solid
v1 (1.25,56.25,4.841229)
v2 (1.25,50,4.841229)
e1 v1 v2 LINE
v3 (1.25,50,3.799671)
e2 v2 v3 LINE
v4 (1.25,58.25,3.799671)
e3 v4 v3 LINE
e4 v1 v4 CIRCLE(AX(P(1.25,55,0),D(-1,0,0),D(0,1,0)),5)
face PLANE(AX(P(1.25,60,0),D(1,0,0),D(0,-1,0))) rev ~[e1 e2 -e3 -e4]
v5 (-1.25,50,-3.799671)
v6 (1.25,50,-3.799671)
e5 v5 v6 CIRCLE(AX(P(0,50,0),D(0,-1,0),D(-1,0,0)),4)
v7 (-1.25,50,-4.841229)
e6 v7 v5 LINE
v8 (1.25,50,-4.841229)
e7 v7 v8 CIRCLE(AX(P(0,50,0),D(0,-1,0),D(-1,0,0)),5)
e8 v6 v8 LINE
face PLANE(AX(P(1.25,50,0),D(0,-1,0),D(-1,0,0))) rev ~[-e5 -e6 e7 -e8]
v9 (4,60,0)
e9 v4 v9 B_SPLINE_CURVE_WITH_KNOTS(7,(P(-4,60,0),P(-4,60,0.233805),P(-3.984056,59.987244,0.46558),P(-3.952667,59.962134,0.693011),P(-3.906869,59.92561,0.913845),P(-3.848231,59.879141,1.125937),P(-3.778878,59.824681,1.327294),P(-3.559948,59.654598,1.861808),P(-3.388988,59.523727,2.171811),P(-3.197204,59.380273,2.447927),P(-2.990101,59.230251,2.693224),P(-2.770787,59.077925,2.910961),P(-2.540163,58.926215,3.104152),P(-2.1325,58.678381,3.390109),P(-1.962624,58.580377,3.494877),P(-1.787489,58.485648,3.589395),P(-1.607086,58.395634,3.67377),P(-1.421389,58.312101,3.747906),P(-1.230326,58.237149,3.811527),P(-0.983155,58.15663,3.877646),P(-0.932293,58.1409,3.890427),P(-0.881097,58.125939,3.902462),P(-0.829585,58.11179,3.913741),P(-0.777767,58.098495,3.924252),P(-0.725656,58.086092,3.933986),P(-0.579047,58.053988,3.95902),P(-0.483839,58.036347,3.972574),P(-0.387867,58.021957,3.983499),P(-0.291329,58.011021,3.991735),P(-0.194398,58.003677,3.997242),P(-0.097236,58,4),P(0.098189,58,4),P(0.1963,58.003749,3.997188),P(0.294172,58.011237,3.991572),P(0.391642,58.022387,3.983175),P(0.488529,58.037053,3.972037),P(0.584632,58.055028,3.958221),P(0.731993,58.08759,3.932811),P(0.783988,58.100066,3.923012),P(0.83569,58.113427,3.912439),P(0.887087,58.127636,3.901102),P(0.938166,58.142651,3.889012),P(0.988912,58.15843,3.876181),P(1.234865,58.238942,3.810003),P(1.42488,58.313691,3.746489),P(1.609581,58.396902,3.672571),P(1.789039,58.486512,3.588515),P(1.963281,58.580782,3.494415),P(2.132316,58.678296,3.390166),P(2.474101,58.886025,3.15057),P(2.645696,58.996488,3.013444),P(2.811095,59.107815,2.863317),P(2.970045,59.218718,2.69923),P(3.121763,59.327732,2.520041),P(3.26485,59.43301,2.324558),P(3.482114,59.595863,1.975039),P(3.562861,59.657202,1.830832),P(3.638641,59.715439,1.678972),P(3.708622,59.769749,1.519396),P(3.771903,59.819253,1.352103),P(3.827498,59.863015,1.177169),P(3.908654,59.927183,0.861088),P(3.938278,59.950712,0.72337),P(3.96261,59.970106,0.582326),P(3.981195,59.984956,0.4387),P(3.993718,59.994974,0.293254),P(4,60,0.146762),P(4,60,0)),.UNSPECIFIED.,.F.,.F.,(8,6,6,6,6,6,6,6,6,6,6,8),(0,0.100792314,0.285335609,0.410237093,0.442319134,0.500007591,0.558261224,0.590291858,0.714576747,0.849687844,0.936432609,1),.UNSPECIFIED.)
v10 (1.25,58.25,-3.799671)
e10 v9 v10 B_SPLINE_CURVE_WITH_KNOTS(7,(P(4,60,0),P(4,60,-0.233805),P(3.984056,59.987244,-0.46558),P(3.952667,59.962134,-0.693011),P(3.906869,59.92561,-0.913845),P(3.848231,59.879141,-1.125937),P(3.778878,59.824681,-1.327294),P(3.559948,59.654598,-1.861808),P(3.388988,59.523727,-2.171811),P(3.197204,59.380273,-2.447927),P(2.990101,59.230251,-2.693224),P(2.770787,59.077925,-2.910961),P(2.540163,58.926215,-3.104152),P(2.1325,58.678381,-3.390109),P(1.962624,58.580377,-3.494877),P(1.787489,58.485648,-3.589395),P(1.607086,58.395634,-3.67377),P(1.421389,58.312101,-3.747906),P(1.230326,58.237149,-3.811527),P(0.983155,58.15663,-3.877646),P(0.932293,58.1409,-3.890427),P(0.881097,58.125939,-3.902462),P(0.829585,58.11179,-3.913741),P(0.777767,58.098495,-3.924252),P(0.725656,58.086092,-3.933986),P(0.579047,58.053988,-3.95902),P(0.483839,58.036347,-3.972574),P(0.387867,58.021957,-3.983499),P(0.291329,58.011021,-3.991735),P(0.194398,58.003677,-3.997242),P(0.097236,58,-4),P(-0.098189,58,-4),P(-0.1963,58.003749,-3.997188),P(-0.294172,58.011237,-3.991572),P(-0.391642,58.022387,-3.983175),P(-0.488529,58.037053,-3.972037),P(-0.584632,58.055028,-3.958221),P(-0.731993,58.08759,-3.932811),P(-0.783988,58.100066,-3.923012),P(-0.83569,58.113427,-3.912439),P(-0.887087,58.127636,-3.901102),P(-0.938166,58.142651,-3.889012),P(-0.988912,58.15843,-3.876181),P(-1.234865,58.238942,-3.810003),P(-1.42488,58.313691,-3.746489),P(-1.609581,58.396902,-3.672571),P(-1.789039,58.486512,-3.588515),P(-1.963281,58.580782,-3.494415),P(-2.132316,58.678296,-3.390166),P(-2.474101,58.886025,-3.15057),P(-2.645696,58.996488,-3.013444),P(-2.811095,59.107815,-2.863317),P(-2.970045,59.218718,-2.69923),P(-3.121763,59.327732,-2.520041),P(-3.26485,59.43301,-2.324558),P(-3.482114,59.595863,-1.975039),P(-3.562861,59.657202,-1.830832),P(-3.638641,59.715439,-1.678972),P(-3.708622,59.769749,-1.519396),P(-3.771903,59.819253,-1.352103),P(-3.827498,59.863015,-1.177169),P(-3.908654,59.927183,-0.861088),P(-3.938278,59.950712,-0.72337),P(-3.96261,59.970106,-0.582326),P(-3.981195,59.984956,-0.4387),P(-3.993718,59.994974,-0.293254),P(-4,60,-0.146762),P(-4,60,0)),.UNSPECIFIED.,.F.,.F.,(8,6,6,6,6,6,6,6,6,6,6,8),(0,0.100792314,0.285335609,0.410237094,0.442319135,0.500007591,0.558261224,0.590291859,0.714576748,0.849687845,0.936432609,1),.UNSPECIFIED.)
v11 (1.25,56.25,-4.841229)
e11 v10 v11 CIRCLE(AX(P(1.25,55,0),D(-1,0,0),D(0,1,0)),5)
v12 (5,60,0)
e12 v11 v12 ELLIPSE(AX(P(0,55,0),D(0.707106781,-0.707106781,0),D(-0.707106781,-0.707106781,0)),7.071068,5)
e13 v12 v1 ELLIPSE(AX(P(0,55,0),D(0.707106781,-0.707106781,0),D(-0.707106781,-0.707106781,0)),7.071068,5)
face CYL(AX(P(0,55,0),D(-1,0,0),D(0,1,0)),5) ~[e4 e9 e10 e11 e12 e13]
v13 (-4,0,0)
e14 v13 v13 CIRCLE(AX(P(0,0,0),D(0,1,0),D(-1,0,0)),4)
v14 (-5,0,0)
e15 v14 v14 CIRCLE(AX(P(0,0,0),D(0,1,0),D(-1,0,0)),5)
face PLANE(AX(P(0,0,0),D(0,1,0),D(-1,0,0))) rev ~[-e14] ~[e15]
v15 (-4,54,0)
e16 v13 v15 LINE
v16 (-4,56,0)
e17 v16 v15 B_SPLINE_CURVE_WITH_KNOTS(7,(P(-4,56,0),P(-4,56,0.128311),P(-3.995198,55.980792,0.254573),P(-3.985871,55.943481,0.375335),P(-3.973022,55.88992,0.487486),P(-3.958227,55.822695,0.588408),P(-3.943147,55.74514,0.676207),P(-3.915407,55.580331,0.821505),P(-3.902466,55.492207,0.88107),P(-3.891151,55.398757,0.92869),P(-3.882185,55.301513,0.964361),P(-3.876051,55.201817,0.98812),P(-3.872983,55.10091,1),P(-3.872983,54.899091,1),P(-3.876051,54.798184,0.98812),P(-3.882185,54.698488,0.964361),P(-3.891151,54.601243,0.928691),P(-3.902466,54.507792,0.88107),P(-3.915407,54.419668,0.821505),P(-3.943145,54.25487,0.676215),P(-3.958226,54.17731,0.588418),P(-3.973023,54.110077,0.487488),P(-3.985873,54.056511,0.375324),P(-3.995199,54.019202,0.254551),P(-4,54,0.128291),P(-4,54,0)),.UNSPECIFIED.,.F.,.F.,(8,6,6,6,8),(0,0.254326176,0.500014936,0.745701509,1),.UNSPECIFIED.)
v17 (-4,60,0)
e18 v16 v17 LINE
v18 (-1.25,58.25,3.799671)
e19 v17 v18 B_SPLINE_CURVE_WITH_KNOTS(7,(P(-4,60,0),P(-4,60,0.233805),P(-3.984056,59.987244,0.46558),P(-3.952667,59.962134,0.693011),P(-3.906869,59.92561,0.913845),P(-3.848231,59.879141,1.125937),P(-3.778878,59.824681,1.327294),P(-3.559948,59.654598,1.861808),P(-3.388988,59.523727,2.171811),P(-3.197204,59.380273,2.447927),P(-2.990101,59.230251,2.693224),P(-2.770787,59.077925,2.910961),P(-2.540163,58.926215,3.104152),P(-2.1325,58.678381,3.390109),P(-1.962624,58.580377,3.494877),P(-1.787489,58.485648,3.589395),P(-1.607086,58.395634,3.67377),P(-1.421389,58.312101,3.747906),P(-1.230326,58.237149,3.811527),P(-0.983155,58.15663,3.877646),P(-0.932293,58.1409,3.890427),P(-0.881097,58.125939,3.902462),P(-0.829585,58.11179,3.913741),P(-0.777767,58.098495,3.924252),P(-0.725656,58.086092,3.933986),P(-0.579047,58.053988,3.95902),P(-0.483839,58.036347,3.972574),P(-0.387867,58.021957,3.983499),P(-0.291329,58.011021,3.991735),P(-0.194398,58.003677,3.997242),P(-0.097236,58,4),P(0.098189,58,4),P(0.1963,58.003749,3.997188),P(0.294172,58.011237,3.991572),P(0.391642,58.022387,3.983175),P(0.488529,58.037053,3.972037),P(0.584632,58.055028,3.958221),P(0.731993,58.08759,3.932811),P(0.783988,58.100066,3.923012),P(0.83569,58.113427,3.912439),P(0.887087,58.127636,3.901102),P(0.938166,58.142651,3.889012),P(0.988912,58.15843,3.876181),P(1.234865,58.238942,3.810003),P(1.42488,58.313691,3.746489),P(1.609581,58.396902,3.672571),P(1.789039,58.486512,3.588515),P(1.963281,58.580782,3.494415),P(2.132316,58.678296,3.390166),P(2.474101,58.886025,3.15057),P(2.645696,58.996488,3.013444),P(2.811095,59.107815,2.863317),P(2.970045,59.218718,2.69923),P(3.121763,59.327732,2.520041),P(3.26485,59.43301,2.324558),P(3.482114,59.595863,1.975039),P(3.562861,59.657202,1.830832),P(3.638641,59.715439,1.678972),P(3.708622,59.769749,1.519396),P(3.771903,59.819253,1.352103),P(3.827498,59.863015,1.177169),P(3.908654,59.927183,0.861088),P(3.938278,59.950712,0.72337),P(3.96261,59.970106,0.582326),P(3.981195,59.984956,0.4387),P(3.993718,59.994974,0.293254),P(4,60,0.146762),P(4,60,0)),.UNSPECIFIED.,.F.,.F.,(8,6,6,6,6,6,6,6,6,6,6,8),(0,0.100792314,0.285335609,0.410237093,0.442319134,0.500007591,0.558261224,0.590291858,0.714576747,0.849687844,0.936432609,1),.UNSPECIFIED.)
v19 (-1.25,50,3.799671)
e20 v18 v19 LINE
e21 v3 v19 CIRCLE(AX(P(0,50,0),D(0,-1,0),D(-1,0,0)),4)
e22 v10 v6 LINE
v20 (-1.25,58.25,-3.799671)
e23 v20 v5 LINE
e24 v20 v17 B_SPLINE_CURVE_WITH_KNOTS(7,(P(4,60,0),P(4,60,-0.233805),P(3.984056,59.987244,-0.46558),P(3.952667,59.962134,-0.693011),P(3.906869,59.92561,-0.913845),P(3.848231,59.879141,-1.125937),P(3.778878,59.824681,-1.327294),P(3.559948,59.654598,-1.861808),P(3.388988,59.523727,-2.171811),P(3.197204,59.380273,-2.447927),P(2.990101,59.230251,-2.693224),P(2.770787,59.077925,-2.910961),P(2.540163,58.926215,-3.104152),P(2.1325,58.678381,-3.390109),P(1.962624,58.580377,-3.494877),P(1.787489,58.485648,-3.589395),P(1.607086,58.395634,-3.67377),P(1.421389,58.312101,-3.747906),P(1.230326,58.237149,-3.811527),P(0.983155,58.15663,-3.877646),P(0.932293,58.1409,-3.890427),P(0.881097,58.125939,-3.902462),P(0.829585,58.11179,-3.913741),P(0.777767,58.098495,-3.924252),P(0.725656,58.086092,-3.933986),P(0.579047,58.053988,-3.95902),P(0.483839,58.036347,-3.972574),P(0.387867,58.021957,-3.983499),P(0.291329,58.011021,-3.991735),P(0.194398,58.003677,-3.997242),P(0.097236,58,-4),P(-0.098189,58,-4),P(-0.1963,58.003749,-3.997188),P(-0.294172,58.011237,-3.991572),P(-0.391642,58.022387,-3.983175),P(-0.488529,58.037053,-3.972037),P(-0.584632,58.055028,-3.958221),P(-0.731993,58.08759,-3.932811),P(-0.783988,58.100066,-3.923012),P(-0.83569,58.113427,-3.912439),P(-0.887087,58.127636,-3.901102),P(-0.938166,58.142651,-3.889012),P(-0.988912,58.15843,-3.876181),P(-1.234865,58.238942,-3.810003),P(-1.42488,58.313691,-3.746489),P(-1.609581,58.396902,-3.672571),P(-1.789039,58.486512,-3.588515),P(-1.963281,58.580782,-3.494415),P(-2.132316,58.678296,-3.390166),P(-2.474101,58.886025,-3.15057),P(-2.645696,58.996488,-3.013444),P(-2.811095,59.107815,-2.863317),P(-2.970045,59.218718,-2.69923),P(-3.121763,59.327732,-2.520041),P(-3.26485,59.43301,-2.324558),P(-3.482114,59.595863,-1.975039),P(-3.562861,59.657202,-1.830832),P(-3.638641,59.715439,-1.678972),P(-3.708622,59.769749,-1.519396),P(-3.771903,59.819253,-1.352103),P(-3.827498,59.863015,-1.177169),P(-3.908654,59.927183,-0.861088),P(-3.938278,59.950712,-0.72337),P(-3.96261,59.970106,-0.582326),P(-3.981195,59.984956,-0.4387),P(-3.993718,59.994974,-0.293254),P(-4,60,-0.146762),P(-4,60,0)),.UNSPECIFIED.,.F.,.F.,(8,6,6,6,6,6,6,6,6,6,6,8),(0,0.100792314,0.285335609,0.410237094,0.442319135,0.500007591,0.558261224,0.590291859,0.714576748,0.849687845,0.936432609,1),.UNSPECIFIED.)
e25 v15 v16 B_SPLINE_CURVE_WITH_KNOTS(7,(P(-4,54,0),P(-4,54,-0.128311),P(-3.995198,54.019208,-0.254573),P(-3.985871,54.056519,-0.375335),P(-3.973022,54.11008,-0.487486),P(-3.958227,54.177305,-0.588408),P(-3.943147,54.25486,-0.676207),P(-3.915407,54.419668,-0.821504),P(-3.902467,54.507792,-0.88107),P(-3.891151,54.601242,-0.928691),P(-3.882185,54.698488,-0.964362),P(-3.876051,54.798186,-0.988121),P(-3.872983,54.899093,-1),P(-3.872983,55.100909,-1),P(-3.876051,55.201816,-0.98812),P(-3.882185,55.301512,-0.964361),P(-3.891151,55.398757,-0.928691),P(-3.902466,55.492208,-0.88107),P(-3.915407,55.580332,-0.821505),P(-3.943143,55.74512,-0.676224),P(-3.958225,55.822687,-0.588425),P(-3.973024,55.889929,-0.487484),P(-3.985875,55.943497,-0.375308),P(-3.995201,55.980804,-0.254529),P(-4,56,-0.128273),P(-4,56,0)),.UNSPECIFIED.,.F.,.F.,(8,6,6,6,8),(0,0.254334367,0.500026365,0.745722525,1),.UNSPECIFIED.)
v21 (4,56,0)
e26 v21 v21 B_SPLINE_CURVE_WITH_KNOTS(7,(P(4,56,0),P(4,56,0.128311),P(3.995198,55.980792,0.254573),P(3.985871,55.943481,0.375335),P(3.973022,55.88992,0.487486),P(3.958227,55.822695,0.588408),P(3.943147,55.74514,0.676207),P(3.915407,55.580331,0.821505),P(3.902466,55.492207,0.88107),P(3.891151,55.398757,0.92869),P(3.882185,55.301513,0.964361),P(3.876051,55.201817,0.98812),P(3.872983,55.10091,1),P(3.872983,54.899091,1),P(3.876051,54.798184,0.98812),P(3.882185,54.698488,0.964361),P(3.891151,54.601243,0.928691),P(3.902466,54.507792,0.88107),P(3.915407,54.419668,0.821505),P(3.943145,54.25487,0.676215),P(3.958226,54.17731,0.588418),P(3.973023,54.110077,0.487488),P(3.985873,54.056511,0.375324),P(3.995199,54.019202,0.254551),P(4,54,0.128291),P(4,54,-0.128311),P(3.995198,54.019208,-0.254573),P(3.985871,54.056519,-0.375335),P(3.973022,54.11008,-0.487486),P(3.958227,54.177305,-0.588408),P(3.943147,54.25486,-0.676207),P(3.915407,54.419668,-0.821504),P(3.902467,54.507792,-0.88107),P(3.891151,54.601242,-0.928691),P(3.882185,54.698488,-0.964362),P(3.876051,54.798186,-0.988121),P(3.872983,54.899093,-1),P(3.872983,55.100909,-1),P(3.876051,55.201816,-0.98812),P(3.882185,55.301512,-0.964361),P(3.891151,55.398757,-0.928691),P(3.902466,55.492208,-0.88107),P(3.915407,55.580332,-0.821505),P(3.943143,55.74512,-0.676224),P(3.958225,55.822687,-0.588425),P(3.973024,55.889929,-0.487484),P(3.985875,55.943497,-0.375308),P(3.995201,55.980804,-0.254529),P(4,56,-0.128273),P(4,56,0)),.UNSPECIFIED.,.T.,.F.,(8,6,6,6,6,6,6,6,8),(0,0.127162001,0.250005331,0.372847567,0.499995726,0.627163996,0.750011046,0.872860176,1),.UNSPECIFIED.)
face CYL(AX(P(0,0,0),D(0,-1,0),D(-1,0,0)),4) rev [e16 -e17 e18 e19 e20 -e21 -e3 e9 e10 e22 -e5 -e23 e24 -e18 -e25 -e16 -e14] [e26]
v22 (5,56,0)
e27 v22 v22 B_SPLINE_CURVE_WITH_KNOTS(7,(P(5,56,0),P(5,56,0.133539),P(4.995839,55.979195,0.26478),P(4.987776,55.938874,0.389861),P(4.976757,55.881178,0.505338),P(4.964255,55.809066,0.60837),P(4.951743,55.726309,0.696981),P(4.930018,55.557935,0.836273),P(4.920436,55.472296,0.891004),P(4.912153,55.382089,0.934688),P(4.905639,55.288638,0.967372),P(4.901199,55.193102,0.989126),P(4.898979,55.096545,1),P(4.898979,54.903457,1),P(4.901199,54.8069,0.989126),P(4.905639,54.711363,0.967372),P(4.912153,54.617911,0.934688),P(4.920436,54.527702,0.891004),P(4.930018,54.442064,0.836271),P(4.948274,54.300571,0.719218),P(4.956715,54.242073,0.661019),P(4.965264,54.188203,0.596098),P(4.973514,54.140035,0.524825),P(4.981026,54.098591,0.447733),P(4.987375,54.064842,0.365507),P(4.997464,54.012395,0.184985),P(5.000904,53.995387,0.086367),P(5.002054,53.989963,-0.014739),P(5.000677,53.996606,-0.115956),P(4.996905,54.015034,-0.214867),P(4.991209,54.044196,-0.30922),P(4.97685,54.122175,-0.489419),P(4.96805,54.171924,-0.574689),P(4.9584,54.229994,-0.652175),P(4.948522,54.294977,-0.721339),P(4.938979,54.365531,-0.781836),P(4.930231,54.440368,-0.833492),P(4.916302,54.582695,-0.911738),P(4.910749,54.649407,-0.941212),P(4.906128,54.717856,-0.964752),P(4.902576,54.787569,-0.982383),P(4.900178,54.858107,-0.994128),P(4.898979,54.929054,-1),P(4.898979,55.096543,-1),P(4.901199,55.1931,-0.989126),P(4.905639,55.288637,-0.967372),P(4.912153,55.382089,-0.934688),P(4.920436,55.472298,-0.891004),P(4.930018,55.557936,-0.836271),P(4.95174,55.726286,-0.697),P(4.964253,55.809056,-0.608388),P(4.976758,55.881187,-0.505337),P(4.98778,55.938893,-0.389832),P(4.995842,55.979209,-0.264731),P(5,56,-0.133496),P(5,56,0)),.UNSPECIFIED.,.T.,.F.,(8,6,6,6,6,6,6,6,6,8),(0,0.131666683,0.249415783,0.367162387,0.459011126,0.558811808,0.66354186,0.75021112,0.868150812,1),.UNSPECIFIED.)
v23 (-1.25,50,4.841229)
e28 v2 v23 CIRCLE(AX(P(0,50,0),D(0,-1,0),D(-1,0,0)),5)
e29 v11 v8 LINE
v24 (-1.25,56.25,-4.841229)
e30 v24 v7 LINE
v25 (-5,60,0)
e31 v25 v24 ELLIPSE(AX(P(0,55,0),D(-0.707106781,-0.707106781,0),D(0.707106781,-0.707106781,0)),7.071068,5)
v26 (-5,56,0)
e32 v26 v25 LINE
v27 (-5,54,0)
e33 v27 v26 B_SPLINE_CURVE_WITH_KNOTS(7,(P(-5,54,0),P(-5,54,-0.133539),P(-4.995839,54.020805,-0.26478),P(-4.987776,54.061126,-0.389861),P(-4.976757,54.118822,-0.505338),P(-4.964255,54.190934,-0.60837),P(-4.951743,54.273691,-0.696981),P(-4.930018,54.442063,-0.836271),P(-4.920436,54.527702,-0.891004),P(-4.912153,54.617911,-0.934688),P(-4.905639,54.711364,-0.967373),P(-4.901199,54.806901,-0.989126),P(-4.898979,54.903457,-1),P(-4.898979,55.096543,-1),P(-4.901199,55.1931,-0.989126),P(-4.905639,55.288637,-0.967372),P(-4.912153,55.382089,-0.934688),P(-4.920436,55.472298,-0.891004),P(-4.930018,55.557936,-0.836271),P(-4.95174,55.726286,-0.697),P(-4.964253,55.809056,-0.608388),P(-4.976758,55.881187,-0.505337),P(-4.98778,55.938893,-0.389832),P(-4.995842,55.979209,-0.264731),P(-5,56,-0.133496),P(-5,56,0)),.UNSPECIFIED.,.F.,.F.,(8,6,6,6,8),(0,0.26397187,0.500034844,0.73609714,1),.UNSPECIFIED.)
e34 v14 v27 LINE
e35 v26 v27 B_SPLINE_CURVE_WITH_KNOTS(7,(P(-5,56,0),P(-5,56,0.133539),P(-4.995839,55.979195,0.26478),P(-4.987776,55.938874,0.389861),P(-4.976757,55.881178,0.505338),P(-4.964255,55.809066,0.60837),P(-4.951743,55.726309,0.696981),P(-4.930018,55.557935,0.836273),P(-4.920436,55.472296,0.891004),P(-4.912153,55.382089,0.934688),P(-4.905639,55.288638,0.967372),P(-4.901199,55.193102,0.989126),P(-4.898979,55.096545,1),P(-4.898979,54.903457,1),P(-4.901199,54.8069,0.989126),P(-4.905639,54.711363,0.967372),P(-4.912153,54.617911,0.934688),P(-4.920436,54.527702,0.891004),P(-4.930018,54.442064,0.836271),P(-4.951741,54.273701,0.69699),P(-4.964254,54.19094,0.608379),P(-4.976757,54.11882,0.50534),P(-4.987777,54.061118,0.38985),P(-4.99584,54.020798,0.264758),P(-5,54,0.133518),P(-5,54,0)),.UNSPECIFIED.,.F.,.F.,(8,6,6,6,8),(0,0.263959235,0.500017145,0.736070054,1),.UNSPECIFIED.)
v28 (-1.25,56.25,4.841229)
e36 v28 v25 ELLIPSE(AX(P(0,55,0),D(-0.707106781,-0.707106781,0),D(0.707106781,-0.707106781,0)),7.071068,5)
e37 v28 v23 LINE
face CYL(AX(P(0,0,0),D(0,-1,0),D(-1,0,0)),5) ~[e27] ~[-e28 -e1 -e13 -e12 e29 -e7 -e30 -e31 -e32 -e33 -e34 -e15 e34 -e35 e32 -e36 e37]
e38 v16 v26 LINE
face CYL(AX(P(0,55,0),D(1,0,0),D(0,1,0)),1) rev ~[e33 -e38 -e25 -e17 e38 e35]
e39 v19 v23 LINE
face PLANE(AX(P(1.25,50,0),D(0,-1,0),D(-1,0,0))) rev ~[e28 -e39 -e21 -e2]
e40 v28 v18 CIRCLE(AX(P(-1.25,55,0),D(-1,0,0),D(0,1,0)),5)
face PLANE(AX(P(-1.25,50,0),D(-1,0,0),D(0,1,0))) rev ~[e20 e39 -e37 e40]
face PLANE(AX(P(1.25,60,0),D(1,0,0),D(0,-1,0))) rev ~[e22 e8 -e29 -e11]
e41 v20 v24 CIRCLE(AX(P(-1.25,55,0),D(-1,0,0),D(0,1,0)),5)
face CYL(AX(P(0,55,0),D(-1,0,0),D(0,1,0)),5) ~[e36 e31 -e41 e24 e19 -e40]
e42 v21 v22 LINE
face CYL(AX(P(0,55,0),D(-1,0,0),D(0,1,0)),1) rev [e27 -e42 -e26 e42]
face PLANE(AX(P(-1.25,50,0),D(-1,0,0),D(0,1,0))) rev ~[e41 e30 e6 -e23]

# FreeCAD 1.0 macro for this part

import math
import FreeCAD as App
import Part
import Sketcher
from FreeCAD import Vector
Q = App.Units.Quantity

doc = App.newDocument("Part")
body = doc.addObject("PartDesign::Body", "Body")

# Sketch on XZ plane
sketch1 = body.newObject("Sketcher::SketchObject", "Sketch")
sketch1.AttachmentSupport = (doc.getObject("XZ_Plane"), [""])
sketch1.MapMode = "FlatFace"
sketch1.addGeometry(Part.Circle(Vector(0, 0, 0), Vector(0, 0, 1), 5), False)
sketch1.addGeometry(Part.Circle(Vector(0, 0, 0), Vector(0, 0, 1), 4), False)
sketch1.addConstraint(Sketcher.Constraint("Coincident", 0, 3, -1, 1))
sketch1.addConstraint(Sketcher.Constraint("Coincident", 1, 3, -1, 1))
sketch1.addConstraint(Sketcher.Constraint("Diameter", 0, Q("10 mm")))
sketch1.addConstraint(Sketcher.Constraint("Diameter", 1, Q("8 mm")))
pad1 = body.newObject("PartDesign::Pad", "Pad")
pad1.Profile = sketch1
pad1.Length = 60
pad1.Reversed = True

# Sketch on YZ plane
sketch2 = body.newObject("Sketcher::SketchObject", "Sketch001")
sketch2.AttachmentSupport = (doc.getObject("YZ_Plane"), [""])
sketch2.MapMode = "FlatFace"
sketch2.addGeometry(Part.LineSegment(Vector(60, -5, 0), Vector(60, 0, 0)), False)
sketch2.addGeometry(Part.ArcOfCircle(Part.Circle(Vector(55, 0, 0), Vector(0, 0, 1), 5), math.radians(-90), math.radians(0)), False)
sketch2.addGeometry(Part.LineSegment(Vector(55, -5, 0), Vector(60, -5, 0)), False)
sketch2.addGeometry(Part.ArcOfCircle(Part.Circle(Vector(55, 0, 0), Vector(0, 0, 1), 5), math.radians(0), math.radians(90)), False)
sketch2.addGeometry(Part.LineSegment(Vector(60, 0, 0), Vector(60, 5, 0)), False)
sketch2.addGeometry(Part.LineSegment(Vector(60, 5, 0), Vector(55, 5, 0)), False)
sketch2.addGeometry(Part.Circle(Vector(55, 0, 0), Vector(0, 0, 1), 1), False)
sketch2.addConstraint(Sketcher.Constraint("Tangent", 0, 2, 1, 2))
sketch2.addConstraint(Sketcher.Constraint("Tangent", 1, 1, 2, 1))
sketch2.addConstraint(Sketcher.Constraint("Coincident", 2, 2, 0, 1))
sketch2.addConstraint(Sketcher.Constraint("Tangent", 3, 1, 4, 1))
sketch2.addConstraint(Sketcher.Constraint("Coincident", 4, 2, 5, 1))
sketch2.addConstraint(Sketcher.Constraint("Tangent", 5, 2, 3, 2))
sketch2.addConstraint(Sketcher.Constraint("Vertical", 0))
sketch2.addConstraint(Sketcher.Constraint("Horizontal", 2))
sketch2.addConstraint(Sketcher.Constraint("Vertical", 4))
sketch2.addConstraint(Sketcher.Constraint("Horizontal", 5))
sketch2.addConstraint(Sketcher.Constraint("Coincident", 3, 3, 1, 3))
sketch2.addConstraint(Sketcher.Constraint("Coincident", 6, 3, 1, 3))
sketch2.addConstraint(Sketcher.Constraint("Equal", 1, 3))
sketch2.addConstraint(Sketcher.Constraint("PointOnObject", 1, 3, -1))
sketch2.addConstraint(Sketcher.Constraint("Diameter", 6, Q("2 mm")))
sketch2.addConstraint(Sketcher.Constraint("Radius", 1, Q("5 mm")))
sketch2.addConstraint(Sketcher.Constraint("DistanceX", -1, 1, 1, 3, Q("55 mm")))
pocket1 = body.newObject("PartDesign::Pocket", "Pocket")
pocket1.Profile = sketch2
pocket1.Type = "ThroughAll"
pocket1.Midplane = True

# Sketch on XY plane
sketch3 = body.newObject("Sketcher::SketchObject", "Sketch002")
sketch3.AttachmentSupport = (doc.getObject("XY_Plane"), [""])
sketch3.MapMode = "FlatFace"
sketch3.addGeometry(Part.LineSegment(Vector(1.25, 60, 0), Vector(-1.25, 60, 0)), False)
sketch3.addGeometry(Part.LineSegment(Vector(-1.25, 60, 0), Vector(-1.25, 50, 0)), False)
sketch3.addGeometry(Part.LineSegment(Vector(-1.25, 50, 0), Vector(1.25, 50, 0)), False)
sketch3.addGeometry(Part.LineSegment(Vector(1.25, 50, 0), Vector(1.25, 60, 0)), False)
sketch3.addConstraint(Sketcher.Constraint("Coincident", 0, 2, 1, 1))
sketch3.addConstraint(Sketcher.Constraint("Coincident", 1, 2, 2, 1))
sketch3.addConstraint(Sketcher.Constraint("Coincident", 2, 2, 3, 1))
sketch3.addConstraint(Sketcher.Constraint("Coincident", 3, 2, 0, 1))
sketch3.addConstraint(Sketcher.Constraint("Horizontal", 0))
sketch3.addConstraint(Sketcher.Constraint("Vertical", 1))
sketch3.addConstraint(Sketcher.Constraint("Horizontal", 2))
sketch3.addConstraint(Sketcher.Constraint("Vertical", 3))
sketch3.addConstraint(Sketcher.Constraint("DistanceY", 1, 2, 1, 1, Q("10 mm")))
sketch3.addConstraint(Sketcher.Constraint("DistanceX", 0, 2, 0, 1, Q("2.5 mm")))
sketch3.addConstraint(Sketcher.Constraint("DistanceY", -1, 1, 0, 2, Q("60 mm")))
sketch3.addConstraint(Sketcher.Constraint("DistanceX", 0, 2, -1, 1, Q("1.25 mm")))
pocket2 = body.newObject("PartDesign::Pocket", "Pocket001")
pocket2.Profile = sketch3
pocket2.Type = "ThroughAll"
pocket2.Midplane = True

doc.recompute()
